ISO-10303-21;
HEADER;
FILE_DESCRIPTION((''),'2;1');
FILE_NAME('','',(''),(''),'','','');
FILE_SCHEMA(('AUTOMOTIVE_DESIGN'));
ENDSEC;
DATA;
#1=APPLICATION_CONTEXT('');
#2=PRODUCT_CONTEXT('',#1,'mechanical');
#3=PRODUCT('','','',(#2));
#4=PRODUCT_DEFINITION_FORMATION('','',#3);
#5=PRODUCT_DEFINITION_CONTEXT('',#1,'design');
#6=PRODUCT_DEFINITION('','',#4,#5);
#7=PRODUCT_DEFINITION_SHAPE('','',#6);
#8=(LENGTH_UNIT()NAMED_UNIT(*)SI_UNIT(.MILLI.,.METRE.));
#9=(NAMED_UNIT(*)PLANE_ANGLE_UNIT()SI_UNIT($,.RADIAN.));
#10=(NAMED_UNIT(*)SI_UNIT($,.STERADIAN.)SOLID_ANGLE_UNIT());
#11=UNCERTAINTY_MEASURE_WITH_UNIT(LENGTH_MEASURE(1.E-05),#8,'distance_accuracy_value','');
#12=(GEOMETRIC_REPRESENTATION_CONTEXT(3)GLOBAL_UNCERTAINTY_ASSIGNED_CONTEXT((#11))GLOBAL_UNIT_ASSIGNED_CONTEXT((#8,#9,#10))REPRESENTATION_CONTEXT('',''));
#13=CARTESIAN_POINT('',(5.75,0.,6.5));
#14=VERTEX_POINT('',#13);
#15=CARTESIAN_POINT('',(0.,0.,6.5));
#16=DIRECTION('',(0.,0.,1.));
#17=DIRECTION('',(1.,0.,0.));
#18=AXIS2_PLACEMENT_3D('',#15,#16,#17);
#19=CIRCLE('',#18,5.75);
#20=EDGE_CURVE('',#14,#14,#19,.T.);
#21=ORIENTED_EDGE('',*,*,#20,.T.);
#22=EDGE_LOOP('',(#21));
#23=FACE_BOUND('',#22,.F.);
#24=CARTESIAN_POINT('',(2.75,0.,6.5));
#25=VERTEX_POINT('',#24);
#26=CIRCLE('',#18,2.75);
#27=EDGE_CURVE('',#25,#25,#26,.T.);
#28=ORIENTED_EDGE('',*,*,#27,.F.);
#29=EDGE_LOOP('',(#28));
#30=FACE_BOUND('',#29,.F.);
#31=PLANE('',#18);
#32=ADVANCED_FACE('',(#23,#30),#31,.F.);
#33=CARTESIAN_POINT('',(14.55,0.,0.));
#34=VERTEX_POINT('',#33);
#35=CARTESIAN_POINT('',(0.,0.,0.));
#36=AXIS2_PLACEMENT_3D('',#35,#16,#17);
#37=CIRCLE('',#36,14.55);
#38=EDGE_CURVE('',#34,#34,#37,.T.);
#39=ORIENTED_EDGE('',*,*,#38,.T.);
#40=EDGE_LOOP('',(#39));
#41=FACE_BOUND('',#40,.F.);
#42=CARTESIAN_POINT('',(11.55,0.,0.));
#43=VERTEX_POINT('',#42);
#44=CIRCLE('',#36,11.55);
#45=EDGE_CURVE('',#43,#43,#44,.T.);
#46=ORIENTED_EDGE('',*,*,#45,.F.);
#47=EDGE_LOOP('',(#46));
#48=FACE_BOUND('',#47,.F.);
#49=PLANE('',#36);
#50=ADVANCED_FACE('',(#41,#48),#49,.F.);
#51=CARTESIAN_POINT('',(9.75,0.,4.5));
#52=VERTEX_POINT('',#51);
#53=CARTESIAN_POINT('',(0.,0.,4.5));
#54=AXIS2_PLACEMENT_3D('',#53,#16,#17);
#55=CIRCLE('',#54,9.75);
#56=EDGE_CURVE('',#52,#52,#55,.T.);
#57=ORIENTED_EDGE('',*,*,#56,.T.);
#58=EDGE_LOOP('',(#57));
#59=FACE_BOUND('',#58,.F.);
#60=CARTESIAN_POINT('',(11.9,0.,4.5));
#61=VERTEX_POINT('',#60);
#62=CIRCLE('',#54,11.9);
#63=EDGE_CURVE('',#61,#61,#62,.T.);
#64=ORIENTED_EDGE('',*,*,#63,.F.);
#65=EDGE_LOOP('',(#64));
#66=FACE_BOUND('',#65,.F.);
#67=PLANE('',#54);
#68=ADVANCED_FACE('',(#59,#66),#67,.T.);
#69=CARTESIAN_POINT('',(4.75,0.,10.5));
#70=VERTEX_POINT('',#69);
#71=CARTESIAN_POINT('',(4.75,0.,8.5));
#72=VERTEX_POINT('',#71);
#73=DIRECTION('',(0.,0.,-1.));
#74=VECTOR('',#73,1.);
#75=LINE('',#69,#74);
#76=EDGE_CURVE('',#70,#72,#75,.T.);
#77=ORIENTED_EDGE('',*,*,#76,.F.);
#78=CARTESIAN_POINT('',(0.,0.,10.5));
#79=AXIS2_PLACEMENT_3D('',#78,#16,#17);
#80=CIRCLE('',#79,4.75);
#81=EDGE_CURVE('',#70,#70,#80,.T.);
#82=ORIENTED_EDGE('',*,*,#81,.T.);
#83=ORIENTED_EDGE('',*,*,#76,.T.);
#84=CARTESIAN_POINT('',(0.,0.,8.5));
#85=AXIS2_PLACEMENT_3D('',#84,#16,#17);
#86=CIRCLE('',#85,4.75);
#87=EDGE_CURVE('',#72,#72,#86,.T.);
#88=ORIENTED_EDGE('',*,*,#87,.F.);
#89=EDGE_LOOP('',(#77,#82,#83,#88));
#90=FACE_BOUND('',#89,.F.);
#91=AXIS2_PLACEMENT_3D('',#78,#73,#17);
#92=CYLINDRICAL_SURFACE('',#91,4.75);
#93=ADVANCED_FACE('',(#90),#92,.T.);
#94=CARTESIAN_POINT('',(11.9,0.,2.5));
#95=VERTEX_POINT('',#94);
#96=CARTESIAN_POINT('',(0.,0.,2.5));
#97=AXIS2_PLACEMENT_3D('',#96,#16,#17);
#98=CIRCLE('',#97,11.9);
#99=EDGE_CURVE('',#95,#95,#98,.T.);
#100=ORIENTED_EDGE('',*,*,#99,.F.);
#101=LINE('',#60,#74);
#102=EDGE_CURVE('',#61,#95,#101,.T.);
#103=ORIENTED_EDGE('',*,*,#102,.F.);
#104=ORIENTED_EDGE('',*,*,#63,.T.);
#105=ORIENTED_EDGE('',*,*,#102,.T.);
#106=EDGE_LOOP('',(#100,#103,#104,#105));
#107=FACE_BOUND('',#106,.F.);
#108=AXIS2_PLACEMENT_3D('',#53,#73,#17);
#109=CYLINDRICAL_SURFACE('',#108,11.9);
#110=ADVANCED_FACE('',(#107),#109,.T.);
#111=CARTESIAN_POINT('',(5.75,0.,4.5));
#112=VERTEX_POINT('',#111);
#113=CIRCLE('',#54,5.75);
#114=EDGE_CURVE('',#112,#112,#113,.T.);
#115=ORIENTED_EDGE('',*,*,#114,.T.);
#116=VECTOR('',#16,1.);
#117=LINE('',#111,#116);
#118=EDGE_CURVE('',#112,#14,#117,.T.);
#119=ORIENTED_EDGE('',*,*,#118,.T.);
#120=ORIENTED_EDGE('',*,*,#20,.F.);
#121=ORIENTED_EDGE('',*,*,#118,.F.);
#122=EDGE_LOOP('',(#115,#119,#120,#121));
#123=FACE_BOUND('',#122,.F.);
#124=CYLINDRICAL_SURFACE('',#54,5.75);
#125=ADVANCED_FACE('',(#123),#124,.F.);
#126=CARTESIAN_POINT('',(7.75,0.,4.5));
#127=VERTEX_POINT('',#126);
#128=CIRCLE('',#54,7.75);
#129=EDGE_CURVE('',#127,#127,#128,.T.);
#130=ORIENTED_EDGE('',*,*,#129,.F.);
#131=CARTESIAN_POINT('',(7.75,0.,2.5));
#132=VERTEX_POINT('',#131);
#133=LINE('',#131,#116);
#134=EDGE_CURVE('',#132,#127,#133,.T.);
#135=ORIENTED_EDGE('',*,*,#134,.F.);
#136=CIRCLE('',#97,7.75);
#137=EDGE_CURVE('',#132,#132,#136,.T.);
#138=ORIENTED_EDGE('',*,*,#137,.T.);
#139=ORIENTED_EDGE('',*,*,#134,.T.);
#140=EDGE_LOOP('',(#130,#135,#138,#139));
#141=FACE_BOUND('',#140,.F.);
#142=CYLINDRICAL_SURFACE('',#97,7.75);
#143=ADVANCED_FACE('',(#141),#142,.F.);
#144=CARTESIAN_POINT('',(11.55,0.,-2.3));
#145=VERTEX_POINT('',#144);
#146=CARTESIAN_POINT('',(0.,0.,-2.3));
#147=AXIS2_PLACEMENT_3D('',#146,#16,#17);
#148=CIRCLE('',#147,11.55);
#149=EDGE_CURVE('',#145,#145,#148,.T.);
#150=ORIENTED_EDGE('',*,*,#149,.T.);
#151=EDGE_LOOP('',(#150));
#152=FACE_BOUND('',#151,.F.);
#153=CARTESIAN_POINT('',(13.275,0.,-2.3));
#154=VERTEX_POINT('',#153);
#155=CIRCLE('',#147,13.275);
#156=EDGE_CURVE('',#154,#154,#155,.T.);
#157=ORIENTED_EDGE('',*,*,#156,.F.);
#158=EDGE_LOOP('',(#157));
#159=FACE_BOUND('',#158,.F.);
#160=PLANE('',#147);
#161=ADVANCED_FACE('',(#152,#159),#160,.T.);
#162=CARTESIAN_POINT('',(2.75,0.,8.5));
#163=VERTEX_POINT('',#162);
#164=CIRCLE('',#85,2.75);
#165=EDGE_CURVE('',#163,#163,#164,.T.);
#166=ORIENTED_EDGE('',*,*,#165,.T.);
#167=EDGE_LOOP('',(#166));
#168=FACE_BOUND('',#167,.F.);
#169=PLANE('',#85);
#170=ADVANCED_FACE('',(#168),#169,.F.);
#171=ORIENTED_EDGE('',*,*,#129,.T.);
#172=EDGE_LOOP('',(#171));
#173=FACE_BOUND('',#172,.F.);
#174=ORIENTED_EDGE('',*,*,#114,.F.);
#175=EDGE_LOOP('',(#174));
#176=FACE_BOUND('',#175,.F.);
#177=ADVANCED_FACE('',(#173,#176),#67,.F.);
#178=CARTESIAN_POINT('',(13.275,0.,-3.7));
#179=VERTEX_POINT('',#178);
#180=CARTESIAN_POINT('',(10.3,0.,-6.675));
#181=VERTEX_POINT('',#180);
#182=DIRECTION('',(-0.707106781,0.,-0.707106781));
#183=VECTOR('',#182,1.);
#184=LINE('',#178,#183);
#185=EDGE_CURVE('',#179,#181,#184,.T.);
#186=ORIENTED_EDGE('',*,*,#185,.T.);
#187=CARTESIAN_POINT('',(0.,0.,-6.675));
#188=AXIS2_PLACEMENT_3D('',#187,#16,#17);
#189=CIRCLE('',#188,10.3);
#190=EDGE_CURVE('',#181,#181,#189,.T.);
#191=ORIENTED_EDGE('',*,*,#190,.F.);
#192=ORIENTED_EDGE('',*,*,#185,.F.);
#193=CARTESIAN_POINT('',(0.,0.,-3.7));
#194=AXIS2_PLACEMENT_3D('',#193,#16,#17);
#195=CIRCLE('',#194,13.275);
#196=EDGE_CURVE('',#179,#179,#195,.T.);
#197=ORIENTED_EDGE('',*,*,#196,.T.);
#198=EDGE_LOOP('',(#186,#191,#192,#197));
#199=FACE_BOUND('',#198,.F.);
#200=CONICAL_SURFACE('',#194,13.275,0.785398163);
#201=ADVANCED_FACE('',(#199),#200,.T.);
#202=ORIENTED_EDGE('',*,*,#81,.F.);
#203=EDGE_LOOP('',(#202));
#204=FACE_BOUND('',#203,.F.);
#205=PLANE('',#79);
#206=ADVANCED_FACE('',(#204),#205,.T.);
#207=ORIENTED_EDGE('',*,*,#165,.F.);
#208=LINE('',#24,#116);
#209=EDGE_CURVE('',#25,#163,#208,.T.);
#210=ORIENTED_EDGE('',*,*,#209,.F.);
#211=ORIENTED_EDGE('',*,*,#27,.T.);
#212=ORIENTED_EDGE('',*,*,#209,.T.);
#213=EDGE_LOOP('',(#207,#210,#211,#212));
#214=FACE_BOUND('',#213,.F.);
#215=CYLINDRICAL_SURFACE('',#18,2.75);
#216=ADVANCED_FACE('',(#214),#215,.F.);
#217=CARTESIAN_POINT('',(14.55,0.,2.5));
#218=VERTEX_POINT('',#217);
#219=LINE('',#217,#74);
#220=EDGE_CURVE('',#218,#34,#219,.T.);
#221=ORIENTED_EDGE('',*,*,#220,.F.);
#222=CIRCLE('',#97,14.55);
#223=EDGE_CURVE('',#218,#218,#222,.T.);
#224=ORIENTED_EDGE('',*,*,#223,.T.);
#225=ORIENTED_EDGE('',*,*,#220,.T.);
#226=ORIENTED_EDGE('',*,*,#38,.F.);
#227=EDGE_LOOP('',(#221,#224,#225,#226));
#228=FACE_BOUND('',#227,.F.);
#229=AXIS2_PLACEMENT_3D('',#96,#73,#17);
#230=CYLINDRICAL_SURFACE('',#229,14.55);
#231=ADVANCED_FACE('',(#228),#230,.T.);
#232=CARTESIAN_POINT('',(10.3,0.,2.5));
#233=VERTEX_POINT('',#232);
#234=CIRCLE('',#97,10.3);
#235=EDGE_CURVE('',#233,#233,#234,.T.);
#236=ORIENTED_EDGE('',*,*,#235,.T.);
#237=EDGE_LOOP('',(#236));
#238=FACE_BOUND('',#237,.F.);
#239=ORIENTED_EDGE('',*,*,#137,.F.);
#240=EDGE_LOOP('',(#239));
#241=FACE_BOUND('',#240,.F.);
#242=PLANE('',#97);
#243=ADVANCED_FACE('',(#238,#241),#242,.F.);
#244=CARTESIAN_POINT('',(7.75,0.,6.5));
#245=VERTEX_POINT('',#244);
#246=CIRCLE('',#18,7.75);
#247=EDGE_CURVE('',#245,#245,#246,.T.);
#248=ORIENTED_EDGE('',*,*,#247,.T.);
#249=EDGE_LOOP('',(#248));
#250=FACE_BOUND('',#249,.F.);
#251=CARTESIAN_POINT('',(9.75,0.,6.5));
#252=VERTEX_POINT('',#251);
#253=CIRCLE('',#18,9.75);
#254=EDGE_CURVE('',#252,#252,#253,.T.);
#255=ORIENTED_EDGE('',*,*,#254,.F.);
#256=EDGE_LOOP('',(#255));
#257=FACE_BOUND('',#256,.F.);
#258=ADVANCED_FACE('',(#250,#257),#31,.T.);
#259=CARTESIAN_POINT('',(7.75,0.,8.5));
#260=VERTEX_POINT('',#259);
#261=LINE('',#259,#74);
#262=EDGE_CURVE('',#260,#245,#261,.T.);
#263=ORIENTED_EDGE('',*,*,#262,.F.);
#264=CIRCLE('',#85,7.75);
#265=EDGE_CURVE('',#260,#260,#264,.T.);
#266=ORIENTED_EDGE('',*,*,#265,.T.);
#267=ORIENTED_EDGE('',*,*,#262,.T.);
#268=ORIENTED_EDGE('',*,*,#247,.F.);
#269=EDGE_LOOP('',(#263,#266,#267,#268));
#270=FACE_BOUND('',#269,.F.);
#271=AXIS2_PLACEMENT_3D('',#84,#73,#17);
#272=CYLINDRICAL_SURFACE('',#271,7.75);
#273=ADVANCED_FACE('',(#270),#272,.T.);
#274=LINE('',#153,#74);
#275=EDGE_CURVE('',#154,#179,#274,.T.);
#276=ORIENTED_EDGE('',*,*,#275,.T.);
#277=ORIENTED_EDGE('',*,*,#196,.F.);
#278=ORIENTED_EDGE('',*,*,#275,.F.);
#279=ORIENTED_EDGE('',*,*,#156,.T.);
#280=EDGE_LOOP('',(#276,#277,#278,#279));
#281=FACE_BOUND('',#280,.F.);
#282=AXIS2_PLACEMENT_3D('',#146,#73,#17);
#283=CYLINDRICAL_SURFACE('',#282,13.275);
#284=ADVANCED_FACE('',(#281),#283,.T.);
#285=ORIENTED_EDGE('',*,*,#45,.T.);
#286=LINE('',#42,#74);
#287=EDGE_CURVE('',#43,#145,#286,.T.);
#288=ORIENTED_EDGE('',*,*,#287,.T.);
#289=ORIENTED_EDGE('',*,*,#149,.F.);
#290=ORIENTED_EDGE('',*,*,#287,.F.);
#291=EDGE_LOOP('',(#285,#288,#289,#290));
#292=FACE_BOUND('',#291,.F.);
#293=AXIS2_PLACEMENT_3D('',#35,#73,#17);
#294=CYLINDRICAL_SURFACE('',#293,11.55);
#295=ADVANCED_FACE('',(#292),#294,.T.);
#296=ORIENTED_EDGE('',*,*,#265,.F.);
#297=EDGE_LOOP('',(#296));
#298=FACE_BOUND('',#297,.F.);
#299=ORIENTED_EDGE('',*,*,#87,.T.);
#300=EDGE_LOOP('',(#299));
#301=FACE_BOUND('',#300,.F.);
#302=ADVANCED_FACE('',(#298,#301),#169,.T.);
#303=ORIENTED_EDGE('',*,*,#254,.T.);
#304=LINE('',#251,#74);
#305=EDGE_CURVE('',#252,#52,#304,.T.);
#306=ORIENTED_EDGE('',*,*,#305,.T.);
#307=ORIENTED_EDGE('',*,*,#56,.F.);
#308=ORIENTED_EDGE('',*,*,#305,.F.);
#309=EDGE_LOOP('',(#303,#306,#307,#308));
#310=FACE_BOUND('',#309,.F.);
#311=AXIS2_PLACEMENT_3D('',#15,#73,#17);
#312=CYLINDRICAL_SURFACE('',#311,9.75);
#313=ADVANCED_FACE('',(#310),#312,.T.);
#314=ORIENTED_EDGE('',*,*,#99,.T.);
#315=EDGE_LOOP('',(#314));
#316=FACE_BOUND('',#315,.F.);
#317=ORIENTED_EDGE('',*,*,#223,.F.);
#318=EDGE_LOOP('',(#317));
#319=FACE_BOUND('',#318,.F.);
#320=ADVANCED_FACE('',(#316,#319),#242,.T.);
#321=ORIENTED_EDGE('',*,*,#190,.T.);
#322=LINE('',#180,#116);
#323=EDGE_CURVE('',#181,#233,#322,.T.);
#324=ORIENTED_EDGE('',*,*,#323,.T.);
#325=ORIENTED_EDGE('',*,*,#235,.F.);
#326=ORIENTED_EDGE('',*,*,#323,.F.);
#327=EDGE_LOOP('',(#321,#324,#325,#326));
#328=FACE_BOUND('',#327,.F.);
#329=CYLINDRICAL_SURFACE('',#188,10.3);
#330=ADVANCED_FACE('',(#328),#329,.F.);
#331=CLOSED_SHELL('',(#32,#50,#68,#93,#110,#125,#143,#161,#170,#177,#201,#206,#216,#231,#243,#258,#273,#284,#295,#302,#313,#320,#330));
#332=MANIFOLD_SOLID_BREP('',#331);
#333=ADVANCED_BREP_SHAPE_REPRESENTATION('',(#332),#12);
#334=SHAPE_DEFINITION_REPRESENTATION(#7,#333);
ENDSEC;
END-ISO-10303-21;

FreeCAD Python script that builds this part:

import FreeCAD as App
import Part
import Sketcher
Q = App.Units.Quantity

doc = App.newDocument("Part")
body = doc.addObject("PartDesign::Body", "Body")

# Sketch on XZ plane
sketch1 = body.newObject("Sketcher::SketchObject", "Sketch")
sketch1.AttachmentSupport = (doc.getObject("XZ_Plane"), [""])
sketch1.MapMode = "FlatFace"
sketch1.addGeometry(Part.LineSegment(App.Vector(11.6, 0, 0), App.Vector(14.6, 0, 0)), False)
sketch1.addGeometry(Part.LineSegment(App.Vector(14.6, 0, 0), App.Vector(14.6, 2.5, 0)), False)
sketch1.addGeometry(Part.LineSegment(App.Vector(14.6, 2.5, 0), App.Vector(11.9, 2.5, 0)), False)
sketch1.addGeometry(Part.LineSegment(App.Vector(11.9, 2.5, 0), App.Vector(11.9, 4.5, 0)), False)
sketch1.addGeometry(Part.LineSegment(App.Vector(11.9, 4.5, 0), App.Vector(9.8, 4.5, 0)), False)
sketch1.addGeometry(Part.LineSegment(App.Vector(9.8, 4.5, 0), App.Vector(9.8, 6.5, 0)), False)
sketch1.addGeometry(Part.LineSegment(App.Vector(9.8, 6.5, 0), App.Vector(7.8, 6.5, 0)), False)
sketch1.addGeometry(Part.LineSegment(App.Vector(7.8, 6.5, 0), App.Vector(7.8, 8.5, 0)), False)
sketch1.addGeometry(Part.LineSegment(App.Vector(7.8, 8.5, 0), App.Vector(4.8, 8.5, 0)), False)
sketch1.addGeometry(Part.LineSegment(App.Vector(4.8, 8.5, 0), App.Vector(4.8, 10.5, 0)), False)
sketch1.addGeometry(Part.LineSegment(App.Vector(4.8, 10.5, 0), App.Vector(0, 10.5, 0)), False)
sketch1.addGeometry(Part.LineSegment(App.Vector(0, 10.5, 0), App.Vector(0, 8.5, 0)), False)
sketch1.addGeometry(Part.LineSegment(App.Vector(0, 8.5, 0), App.Vector(2.8, 8.5, 0)), False)
sketch1.addGeometry(Part.LineSegment(App.Vector(2.8, 8.5, 0), App.Vector(2.8, 6.5, 0)), False)
sketch1.addGeometry(Part.LineSegment(App.Vector(2.8, 6.5, 0), App.Vector(5.8, 6.5, 0)), False)
sketch1.addGeometry(Part.LineSegment(App.Vector(5.8, 6.5, 0), App.Vector(5.8, 4.5, 0)), False)
sketch1.addGeometry(Part.LineSegment(App.Vector(5.8, 4.5, 0), App.Vector(7.8, 4.5, 0)), False)
sketch1.addGeometry(Part.LineSegment(App.Vector(7.8, 4.5, 0), App.Vector(7.8, 2.5, 0)), False)
sketch1.addGeometry(Part.LineSegment(App.Vector(7.8, 2.5, 0), App.Vector(10.3, 2.5, 0)), False)
sketch1.addGeometry(Part.LineSegment(App.Vector(10.3, 2.5, 0), App.Vector(10.3, -6.7, 0)), False)
sketch1.addGeometry(Part.LineSegment(App.Vector(10.3, -6.7, 0), App.Vector(13.3, -3.7, 0)), False)
sketch1.addGeometry(Part.LineSegment(App.Vector(13.3, -3.7, 0), App.Vector(13.3, -2.3, 0)), False)
sketch1.addGeometry(Part.LineSegment(App.Vector(13.3, -2.3, 0), App.Vector(11.6, -2.3, 0)), False)
sketch1.addGeometry(Part.LineSegment(App.Vector(11.6, -2.3, 0), App.Vector(11.6, 0, 0)), False)
sketch1.addConstraint(Sketcher.Constraint("Coincident", 0, 2, 1, 1))
sketch1.addConstraint(Sketcher.Constraint("Coincident", 1, 2, 2, 1))
sketch1.addConstraint(Sketcher.Constraint("Coincident", 2, 2, 3, 1))
sketch1.addConstraint(Sketcher.Constraint("Coincident", 3, 2, 4, 1))
sketch1.addConstraint(Sketcher.Constraint("Coincident", 4, 2, 5, 1))
sketch1.addConstraint(Sketcher.Constraint("Coincident", 5, 2, 6, 1))
sketch1.addConstraint(Sketcher.Constraint("Coincident", 6, 2, 7, 1))
sketch1.addConstraint(Sketcher.Constraint("Coincident", 7, 2, 8, 1))
sketch1.addConstraint(Sketcher.Constraint("Coincident", 8, 2, 9, 1))
sketch1.addConstraint(Sketcher.Constraint("Coincident", 9, 2, 10, 1))
sketch1.addConstraint(Sketcher.Constraint("Coincident", 10, 2, 11, 1))
sketch1.addConstraint(Sketcher.Constraint("Coincident", 11, 2, 12, 1))
sketch1.addConstraint(Sketcher.Constraint("Coincident", 12, 2, 13, 1))
sketch1.addConstraint(Sketcher.Constraint("Coincident", 13, 2, 14, 1))
sketch1.addConstraint(Sketcher.Constraint("Coincident", 14, 2, 15, 1))
sketch1.addConstraint(Sketcher.Constraint("Coincident", 15, 2, 16, 1))
sketch1.addConstraint(Sketcher.Constraint("Coincident", 16, 2, 17, 1))
sketch1.addConstraint(Sketcher.Constraint("Coincident", 17, 2, 18, 1))
sketch1.addConstraint(Sketcher.Constraint("Coincident", 18, 2, 19, 1))
sketch1.addConstraint(Sketcher.Constraint("Coincident", 19, 2, 20, 1))
sketch1.addConstraint(Sketcher.Constraint("Coincident", 20, 2, 21, 1))
sketch1.addConstraint(Sketcher.Constraint("Coincident", 21, 2, 22, 1))
sketch1.addConstraint(Sketcher.Constraint("Coincident", 22, 2, 23, 1))
sketch1.addConstraint(Sketcher.Constraint("Coincident", 23, 2, 0, 1))
sketch1.addConstraint(Sketcher.Constraint("Horizontal", 0))
sketch1.addConstraint(Sketcher.Constraint("Vertical", 1))
sketch1.addConstraint(Sketcher.Constraint("Horizontal", 2))
sketch1.addConstraint(Sketcher.Constraint("Vertical", 3))
sketch1.addConstraint(Sketcher.Constraint("Horizontal", 4))
sketch1.addConstraint(Sketcher.Constraint("Vertical", 5))
sketch1.addConstraint(Sketcher.Constraint("Horizontal", 6))
sketch1.addConstraint(Sketcher.Constraint("Vertical", 7))
sketch1.addConstraint(Sketcher.Constraint("Horizontal", 8))
sketch1.addConstraint(Sketcher.Constraint("Vertical", 9))
sketch1.addConstraint(Sketcher.Constraint("Horizontal", 10))
sketch1.addConstraint(Sketcher.Constraint("Vertical", 11))
sketch1.addConstraint(Sketcher.Constraint("Horizontal", 12))
sketch1.addConstraint(Sketcher.Constraint("Vertical", 13))
sketch1.addConstraint(Sketcher.Constraint("Horizontal", 14))
sketch1.addConstraint(Sketcher.Constraint("Vertical", 15))
sketch1.addConstraint(Sketcher.Constraint("Horizontal", 16))
sketch1.addConstraint(Sketcher.Constraint("Vertical", 17))
sketch1.addConstraint(Sketcher.Constraint("Horizontal", 18))
sketch1.addConstraint(Sketcher.Constraint("Vertical", 19))
sketch1.addConstraint(Sketcher.Constraint("Vertical", 21))
sketch1.addConstraint(Sketcher.Constraint("Horizontal", 22))
sketch1.addConstraint(Sketcher.Constraint("Vertical", 23))
sketch1.addConstraint(Sketcher.Constraint("PointOnObject", 0, 2, -1))
sketch1.addConstraint(Sketcher.Constraint("PointOnObject", 10, 2, -2))
sketch1.addConstraint(Sketcher.Constraint("Horizontal", 8, 2, 11, 2))
sketch1.addConstraint(Sketcher.Constraint("Horizontal", 6, 2, 13, 2))
sketch1.addConstraint(Sketcher.Constraint("Horizontal", 4, 2, 15, 2))
sketch1.addConstraint(Sketcher.Constraint("Horizontal", 2, 2, 17, 2))
sketch1.addConstraint(Sketcher.Constraint("Vertical", 7, 2, 16, 2))
sketch1.addConstraint(Sketcher.Constraint("Equal", 0, 8))
sketch1.addConstraint(Sketcher.Constraint("Equal", 8, 14))
sketch1.addConstraint(Sketcher.Constraint("Equal", 6, 16))
sketch1.addConstraint(Sketcher.Constraint("Equal", 16, 3))
sketch1.addConstraint(Sketcher.Constraint("Equal", 3, 5))
sketch1.addConstraint(Sketcher.Constraint("Equal", 5, 7))
sketch1.addConstraint(Sketcher.Constraint("Equal", 7, 9))
sketch1.addConstraint(Sketcher.Constraint("DistanceX", 0, 1, 0, 2, Q("3 mm")))
sketch1.addConstraint(Sketcher.Constraint("DistanceX", 6, 2, 6, 1, Q("2 mm")))
sketch1.addConstraint(Sketcher.Constraint("Angle", 20, Q("45 deg")))
sketch1.addConstraint(Sketcher.Constraint("DistanceY", 1, 1, 1, 2, Q("2.5 mm")))
sketch1.addConstraint(Sketcher.Constraint("DistanceY", 21, 1, 21, 2, Q("1.4 mm")))
sketch1.addConstraint(Sketcher.Constraint("DistanceY", 23, 1, 23, 2, Q("2.3 mm")))
sketch1.addConstraint(Sketcher.Constraint("DistanceX", 2, 2, 2, 1, Q("2.65 mm")))
sketch1.addConstraint(Sketcher.Constraint("DistanceX", 4, 2, 4, 1, Q("2.15 mm")))
sketch1.addConstraint(Sketcher.Constraint("DistanceX", 10, 2, 10, 1, Q("4.75 mm")))
sketch1.addConstraint(Sketcher.Constraint("DistanceX", 18, 1, 18, 2, Q("2.55 mm")))
sketch1.addConstraint(Sketcher.Constraint("DistanceX", 22, 2, 22, 1, Q("1.725 mm")))
revolution = body.newObject("PartDesign::Revolution", "Revolution")
revolution.Profile = sketch1
revolution.ReferenceAxis = (sketch1, ["V_Axis"])
revolution.Angle = 360

doc.recompute()
